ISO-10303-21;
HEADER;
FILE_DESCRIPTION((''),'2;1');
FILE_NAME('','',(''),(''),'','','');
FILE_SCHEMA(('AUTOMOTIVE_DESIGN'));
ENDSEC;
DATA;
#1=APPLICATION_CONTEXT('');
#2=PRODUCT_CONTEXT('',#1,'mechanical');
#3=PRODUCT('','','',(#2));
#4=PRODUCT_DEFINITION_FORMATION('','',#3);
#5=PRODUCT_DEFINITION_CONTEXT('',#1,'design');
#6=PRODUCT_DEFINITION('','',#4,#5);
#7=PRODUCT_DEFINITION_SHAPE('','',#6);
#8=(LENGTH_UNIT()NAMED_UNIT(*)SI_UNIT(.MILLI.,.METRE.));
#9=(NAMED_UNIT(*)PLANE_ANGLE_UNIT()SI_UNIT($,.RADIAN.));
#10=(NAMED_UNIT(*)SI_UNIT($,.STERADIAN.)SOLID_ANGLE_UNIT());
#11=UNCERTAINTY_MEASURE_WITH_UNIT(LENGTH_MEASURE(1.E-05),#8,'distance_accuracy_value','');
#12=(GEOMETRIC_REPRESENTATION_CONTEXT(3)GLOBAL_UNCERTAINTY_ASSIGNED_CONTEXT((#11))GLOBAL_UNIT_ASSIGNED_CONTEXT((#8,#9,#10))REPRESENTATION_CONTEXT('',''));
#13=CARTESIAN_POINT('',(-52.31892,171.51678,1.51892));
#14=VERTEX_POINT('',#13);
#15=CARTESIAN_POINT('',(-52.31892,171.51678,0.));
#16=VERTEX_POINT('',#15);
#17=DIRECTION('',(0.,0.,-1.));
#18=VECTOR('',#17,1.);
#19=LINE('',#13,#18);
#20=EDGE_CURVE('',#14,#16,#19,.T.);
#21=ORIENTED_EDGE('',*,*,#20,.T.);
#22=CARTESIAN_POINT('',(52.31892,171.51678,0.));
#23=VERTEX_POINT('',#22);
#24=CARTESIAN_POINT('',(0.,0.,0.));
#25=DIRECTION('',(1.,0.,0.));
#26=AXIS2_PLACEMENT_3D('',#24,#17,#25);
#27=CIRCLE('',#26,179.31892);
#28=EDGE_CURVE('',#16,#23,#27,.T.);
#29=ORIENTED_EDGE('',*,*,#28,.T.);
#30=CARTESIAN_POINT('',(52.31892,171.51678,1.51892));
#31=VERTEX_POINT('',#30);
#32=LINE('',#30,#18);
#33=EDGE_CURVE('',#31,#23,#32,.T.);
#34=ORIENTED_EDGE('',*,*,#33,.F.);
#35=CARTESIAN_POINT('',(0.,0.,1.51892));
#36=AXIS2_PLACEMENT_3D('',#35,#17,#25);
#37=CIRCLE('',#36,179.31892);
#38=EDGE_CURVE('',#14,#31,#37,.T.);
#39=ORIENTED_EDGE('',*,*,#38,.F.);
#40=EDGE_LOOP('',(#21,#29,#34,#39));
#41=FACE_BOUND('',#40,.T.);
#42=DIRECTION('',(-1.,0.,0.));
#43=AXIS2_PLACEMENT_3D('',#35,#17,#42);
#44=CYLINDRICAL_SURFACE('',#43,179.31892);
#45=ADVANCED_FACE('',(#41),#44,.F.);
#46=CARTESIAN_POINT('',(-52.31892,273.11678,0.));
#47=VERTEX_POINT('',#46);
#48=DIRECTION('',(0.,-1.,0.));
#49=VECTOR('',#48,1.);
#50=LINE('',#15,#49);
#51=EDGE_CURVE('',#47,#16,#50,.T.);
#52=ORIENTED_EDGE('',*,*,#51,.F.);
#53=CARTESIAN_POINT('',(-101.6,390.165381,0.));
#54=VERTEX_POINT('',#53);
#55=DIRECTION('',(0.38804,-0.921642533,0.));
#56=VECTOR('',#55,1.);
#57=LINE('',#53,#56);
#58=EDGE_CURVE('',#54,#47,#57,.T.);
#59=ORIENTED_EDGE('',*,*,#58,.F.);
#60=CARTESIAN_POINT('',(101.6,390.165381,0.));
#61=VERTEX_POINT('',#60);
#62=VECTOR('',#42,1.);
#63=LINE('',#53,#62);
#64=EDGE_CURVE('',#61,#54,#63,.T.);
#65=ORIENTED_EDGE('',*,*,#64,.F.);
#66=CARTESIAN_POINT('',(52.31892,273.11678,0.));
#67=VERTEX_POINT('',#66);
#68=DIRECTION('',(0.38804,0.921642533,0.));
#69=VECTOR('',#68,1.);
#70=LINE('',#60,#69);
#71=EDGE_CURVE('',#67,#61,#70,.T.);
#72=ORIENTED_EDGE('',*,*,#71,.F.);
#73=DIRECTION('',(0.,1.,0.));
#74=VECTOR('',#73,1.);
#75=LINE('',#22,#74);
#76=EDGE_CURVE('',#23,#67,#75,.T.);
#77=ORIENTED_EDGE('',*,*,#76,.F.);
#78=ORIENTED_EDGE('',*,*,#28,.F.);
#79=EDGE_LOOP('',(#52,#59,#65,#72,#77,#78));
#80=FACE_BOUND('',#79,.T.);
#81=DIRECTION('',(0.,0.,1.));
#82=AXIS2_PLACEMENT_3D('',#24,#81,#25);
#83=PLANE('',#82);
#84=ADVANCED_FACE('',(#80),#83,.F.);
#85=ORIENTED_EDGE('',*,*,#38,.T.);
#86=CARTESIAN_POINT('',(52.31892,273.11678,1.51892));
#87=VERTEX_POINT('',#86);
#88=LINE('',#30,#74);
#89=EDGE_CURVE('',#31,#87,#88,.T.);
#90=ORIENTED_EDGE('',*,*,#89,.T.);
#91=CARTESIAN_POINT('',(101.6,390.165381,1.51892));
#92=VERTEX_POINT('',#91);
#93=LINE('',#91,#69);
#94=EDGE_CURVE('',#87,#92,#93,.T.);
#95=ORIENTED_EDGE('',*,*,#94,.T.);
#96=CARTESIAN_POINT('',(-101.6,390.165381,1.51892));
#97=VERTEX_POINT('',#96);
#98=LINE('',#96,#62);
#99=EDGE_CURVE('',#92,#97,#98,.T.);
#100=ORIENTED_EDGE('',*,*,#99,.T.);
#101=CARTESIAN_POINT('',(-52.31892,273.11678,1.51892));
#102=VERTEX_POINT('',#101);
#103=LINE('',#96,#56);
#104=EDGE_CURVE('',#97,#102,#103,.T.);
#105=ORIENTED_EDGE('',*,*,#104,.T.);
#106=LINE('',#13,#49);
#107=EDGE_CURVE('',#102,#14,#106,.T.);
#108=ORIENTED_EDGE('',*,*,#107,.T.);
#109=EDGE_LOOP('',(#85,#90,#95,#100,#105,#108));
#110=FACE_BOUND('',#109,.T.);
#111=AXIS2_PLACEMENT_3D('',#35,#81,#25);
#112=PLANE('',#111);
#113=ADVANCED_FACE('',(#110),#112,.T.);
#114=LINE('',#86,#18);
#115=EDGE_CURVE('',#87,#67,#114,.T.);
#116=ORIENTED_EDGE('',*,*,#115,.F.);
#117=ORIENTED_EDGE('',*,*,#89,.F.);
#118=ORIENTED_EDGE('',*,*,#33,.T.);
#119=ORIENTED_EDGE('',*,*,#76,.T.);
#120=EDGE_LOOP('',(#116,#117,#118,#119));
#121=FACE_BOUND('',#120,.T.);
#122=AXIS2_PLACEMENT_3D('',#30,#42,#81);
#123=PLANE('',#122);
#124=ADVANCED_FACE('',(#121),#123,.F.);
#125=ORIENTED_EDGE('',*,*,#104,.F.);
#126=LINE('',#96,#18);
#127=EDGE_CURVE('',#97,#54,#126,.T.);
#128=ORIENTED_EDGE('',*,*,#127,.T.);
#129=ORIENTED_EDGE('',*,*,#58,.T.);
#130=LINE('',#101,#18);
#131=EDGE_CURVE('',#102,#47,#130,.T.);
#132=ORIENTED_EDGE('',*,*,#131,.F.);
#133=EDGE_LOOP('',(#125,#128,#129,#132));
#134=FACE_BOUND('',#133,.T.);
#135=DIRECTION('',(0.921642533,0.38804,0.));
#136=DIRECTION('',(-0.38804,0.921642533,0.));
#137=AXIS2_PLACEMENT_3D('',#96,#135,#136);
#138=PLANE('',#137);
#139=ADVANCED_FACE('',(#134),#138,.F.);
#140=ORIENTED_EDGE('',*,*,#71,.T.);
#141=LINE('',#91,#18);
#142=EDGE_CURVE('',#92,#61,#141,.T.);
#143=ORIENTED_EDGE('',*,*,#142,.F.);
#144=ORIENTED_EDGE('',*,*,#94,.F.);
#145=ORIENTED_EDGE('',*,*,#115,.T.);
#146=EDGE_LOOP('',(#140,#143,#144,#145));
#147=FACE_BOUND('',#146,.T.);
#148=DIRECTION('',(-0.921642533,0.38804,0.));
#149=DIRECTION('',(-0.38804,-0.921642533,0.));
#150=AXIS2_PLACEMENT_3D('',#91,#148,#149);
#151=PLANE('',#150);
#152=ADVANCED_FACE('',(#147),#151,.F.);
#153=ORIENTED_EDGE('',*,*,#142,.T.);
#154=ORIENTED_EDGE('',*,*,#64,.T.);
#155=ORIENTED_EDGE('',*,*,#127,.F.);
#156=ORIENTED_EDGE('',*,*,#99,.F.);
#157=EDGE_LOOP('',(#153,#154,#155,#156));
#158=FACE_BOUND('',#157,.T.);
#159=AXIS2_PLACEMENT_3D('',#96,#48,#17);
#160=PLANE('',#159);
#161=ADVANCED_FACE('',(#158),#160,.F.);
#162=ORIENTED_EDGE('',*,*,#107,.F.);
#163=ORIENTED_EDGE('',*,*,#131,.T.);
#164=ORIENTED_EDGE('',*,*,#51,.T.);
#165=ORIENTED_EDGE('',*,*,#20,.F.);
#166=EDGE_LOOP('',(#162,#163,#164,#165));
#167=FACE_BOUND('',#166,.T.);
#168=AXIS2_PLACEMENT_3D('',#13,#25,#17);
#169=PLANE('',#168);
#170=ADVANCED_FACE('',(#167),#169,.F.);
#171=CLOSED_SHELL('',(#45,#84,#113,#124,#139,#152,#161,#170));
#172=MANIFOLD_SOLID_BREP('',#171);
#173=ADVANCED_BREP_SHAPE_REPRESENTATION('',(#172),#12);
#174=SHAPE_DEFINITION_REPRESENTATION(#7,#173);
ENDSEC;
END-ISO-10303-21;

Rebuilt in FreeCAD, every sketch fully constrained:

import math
import FreeCAD as App
import Part
import Sketcher
from FreeCAD import Vector
Q = App.Units.Quantity

doc = App.newDocument("Part")
params = doc.addObject("Spreadsheet::Sheet", "Params")
for row, (alias, value) in enumerate([
    ("sketch1_width", "8 in"),
    ("sketch1_height", "4 in"),
    ("sketch1_length", "5 in"),
    ("pad1_length", "0.0598 in"),
], start=1):
    params.set(f"A{row}", alias)
    params.set(f"B{row}", "=" + value)
    params.setAlias(f"B{row}", alias)

body = doc.addObject("PartDesign::Body", "Body")

sketch1 = doc.addObject("Sketcher::SketchObject", "Sketch")
body.addObject(sketch1)
sketch1.AttachmentSupport = (doc.XY_Plane, [""])
sketch1.MapMode = "FlatFace"
sketch1.addGeometry(Part.LineSegment(Vector(-52, 273, 0), Vector(-52, 172, 0)), False)
sketch1.addGeometry(Part.ArcOfCircle(Part.Circle(Vector(0, 0, 0), Vector(0, 0, 1), 179), math.radians(73), math.radians(107)), False)
sketch1.addGeometry(Part.LineSegment(Vector(52, 172, 0), Vector(52, 273, 0)), False)
sketch1.addGeometry(Part.LineSegment(Vector(52, 273, 0), Vector(102, 390, 0)), False)
sketch1.addGeometry(Part.LineSegment(Vector(102, 390, 0), Vector(-102, 390, 0)), False)
sketch1.addGeometry(Part.LineSegment(Vector(-102, 390, 0), Vector(-52, 273, 0)), False)
sketch1.addConstraint(Sketcher.Constraint("Coincident", 0, 2, 1, 2))
sketch1.addConstraint(Sketcher.Constraint("Coincident", 1, 1, 2, 1))
sketch1.addConstraint(Sketcher.Constraint("Coincident", 2, 2, 3, 1))
sketch1.addConstraint(Sketcher.Constraint("Coincident", 3, 2, 4, 1))
sketch1.addConstraint(Sketcher.Constraint("Coincident", 4, 2, 5, 1))
sketch1.addConstraint(Sketcher.Constraint("Coincident", 5, 2, 0, 1))
sketch1.addConstraint(Sketcher.Constraint("Vertical", 0))
sketch1.addConstraint(Sketcher.Constraint("Vertical", 2))
sketch1.addConstraint(Sketcher.Constraint("Horizontal", 4))
sketch1.addConstraint(Sketcher.Constraint("Coincident", 1, 3, -1, 1))
sketch1.addConstraint(Sketcher.Constraint("Symmetric", 2, 2, 5, 2, -2))
sketch1.addConstraint(Sketcher.Constraint("Equal", 3, 5))
sketch1.addConstraint(Sketcher.Constraint("DistanceX", 4, 2, 4, 1, Q("8 in")))
sketch1.addConstraint(Sketcher.Constraint("DistanceY", 0, 2, 0, 1, Q("4 in")))
sketch1.addConstraint(Sketcher.Constraint("Distance", 3, Q("5 in")))
sketch1.addConstraint(Sketcher.Constraint("Radius", 1, Q("7.0598 in")))
sketch1.addConstraint(Sketcher.Constraint("DistanceX", 0, 2, -1, 1, Q("2.0598 in")))
sketch1.setExpression("Constraints[12]", "Params.sketch1_width")
sketch1.setExpression("Constraints[13]", "Params.sketch1_height")
sketch1.setExpression("Constraints[14]", "Params.sketch1_length")
pad1 = doc.addObject("PartDesign::Pad", "Pad")
body.addObject(pad1)
pad1.Profile = sketch1
pad1.setExpression("Length", "Params.pad1_length")

doc.recompute()
